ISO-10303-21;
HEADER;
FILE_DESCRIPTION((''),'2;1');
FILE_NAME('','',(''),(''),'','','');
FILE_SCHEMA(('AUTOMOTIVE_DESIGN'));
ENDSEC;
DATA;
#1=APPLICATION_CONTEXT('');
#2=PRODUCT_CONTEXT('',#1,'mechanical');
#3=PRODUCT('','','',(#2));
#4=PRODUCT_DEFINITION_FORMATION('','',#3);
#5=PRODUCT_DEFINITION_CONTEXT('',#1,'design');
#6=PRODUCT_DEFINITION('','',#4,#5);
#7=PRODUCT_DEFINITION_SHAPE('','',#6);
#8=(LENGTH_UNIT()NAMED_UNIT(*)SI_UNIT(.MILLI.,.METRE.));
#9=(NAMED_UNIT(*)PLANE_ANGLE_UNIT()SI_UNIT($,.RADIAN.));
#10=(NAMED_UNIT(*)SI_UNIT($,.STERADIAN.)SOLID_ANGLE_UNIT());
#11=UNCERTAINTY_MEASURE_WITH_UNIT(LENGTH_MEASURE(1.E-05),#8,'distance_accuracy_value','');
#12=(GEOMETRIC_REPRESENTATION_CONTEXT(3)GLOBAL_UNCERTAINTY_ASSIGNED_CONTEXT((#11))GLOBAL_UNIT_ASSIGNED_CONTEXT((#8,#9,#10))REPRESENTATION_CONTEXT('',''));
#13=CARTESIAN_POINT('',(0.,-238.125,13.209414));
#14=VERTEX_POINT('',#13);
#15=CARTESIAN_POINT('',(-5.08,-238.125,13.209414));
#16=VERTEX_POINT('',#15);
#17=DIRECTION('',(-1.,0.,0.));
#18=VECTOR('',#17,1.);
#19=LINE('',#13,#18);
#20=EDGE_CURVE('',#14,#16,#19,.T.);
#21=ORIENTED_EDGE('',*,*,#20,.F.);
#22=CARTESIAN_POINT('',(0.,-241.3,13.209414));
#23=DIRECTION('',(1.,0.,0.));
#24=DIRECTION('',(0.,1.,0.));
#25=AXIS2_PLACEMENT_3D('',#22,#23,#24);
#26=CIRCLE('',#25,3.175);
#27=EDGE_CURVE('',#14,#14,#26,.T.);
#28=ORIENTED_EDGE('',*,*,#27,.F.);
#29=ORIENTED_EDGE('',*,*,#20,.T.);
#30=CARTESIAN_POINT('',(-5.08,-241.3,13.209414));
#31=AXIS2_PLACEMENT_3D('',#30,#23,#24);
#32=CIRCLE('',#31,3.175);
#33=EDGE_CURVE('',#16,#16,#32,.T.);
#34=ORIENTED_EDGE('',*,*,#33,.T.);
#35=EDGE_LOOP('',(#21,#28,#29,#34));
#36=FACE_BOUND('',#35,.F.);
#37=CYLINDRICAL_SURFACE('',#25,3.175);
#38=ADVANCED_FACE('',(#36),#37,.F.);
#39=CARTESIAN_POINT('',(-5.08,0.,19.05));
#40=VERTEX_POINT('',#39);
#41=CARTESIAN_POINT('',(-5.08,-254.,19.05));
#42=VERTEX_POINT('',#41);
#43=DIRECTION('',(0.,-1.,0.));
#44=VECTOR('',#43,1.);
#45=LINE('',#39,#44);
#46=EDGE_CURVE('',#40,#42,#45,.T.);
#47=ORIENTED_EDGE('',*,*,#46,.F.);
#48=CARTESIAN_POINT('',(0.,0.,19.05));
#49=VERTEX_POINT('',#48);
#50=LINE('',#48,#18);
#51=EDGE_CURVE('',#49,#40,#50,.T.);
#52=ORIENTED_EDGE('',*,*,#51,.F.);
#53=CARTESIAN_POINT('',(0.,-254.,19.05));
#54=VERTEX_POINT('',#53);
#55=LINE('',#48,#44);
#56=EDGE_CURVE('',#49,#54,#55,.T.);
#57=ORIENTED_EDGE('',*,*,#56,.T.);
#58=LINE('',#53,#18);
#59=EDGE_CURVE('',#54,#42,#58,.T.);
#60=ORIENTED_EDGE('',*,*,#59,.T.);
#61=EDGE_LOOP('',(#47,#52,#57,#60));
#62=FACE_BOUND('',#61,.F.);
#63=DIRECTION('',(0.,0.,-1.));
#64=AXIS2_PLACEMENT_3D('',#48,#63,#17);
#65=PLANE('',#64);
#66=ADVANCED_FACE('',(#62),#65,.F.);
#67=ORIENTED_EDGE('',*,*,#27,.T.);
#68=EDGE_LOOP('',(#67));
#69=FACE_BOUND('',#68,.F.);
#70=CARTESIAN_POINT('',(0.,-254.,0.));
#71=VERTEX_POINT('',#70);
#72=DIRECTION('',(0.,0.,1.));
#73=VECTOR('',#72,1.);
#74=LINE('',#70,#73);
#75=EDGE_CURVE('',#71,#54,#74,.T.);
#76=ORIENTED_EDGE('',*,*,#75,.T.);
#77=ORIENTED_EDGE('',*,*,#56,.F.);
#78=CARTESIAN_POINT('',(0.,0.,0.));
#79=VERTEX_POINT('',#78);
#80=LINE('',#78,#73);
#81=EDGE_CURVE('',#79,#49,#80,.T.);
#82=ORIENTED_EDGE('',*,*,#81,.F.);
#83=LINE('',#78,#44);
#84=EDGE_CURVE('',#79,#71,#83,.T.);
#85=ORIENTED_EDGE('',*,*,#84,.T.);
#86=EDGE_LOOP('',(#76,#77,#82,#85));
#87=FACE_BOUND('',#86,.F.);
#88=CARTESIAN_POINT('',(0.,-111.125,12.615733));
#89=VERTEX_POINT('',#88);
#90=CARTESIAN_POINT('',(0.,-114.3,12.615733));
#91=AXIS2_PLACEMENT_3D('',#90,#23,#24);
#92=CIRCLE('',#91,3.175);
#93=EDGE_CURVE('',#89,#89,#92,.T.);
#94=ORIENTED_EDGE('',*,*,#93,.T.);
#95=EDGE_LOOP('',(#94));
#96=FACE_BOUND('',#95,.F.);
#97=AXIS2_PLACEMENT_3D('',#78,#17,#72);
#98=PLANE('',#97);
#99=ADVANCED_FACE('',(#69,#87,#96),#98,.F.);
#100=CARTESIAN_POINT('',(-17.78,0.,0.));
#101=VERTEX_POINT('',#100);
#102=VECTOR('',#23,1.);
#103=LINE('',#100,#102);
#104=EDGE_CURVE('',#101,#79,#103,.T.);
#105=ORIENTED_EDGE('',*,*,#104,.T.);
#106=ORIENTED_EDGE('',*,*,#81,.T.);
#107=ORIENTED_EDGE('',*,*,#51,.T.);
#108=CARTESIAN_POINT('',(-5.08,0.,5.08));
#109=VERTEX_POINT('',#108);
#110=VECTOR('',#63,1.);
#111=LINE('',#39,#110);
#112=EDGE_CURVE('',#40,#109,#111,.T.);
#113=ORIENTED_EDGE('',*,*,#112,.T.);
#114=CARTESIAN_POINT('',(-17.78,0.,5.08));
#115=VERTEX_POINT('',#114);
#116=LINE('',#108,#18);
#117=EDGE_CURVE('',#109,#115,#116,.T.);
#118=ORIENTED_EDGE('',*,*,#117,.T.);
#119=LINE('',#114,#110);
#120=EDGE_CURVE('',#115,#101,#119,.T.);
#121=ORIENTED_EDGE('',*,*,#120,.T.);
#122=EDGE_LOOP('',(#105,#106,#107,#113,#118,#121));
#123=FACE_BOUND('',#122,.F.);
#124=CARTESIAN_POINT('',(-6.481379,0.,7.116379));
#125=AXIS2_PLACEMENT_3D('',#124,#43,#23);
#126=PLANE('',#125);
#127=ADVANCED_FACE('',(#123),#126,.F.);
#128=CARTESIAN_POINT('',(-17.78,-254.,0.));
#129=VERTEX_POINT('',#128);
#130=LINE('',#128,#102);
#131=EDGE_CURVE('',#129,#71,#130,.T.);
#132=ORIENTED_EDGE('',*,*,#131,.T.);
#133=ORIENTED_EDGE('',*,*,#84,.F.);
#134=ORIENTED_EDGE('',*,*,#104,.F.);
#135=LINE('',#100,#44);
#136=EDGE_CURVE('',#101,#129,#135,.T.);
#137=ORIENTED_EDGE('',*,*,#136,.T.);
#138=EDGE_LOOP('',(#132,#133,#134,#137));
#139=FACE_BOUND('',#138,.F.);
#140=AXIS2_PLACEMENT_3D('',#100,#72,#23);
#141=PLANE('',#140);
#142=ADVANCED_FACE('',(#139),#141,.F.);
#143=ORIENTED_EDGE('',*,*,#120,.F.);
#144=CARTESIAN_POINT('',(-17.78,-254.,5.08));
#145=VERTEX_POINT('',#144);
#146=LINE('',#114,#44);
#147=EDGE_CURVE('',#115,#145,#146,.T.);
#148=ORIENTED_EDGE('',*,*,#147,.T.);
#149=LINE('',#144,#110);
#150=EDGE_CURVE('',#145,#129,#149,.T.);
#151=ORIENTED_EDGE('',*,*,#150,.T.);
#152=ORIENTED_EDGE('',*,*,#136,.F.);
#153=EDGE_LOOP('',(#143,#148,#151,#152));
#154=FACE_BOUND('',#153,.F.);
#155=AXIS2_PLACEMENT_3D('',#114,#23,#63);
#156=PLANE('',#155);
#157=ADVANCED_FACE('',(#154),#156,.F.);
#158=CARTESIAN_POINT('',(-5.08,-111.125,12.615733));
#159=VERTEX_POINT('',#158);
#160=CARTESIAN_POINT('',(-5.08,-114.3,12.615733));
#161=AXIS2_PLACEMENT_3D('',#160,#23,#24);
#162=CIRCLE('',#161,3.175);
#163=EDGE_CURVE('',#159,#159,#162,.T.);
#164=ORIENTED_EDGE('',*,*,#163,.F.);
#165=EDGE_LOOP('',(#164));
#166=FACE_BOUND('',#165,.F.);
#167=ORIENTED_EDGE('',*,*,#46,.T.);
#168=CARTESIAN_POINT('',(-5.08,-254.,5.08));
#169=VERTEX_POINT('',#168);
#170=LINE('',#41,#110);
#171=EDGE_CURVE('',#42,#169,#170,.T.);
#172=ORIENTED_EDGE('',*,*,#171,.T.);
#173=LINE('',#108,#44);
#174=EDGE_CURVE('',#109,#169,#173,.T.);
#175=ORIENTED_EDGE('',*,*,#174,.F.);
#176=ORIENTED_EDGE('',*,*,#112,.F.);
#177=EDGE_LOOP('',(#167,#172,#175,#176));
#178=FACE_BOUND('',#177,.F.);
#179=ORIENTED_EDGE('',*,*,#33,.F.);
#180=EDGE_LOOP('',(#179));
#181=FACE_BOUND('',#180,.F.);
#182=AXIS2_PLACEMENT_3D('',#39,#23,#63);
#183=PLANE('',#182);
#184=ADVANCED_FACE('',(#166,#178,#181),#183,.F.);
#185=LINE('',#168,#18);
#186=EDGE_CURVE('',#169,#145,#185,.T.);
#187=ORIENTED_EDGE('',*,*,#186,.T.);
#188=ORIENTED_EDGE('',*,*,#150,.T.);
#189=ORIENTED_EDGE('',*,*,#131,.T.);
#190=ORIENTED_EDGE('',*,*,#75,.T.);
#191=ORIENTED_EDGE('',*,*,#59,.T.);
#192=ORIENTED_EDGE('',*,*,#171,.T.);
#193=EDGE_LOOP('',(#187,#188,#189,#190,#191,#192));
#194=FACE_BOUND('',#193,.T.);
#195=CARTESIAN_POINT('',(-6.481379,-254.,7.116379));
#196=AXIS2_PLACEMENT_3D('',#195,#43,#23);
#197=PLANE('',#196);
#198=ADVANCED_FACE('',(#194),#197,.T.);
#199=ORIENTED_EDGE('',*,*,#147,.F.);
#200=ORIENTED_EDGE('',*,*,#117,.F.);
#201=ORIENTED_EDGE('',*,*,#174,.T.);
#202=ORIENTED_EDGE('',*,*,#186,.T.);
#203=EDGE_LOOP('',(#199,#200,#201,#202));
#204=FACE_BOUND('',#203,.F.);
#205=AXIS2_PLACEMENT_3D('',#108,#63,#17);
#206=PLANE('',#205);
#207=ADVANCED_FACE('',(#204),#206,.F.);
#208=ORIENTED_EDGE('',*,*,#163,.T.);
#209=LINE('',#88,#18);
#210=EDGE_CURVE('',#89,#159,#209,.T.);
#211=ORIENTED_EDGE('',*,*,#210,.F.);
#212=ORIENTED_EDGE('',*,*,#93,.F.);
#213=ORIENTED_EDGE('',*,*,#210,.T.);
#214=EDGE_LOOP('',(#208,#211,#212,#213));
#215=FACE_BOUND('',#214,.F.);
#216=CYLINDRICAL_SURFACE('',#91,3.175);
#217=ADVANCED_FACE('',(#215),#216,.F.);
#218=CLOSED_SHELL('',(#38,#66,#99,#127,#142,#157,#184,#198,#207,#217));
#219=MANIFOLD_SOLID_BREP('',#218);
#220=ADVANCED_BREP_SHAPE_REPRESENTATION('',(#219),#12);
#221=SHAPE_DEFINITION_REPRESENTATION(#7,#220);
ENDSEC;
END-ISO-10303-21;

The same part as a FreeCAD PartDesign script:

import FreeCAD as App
import Part
import Sketcher
Q = App.Units.Quantity

doc = App.newDocument("Part")
body = doc.addObject("PartDesign::Body", "Body")

sketch1 = doc.addObject("Sketcher::SketchObject", "Sketch")
body.addObject(sketch1)
sketch1.AttachmentSupport = (doc.XZ_Plane, [""])
sketch1.MapMode = "FlatFace"
sketch1.addGeometry([
    Part.LineSegment(App.Vector(-17.78, 0, 0), App.Vector(0, 0, 0)),
    Part.LineSegment(App.Vector(0, 0, 0), App.Vector(0, 19.05, 0)),
    Part.LineSegment(App.Vector(0, 19.05, 0), App.Vector(-5.08, 19.05, 0)),
    Part.LineSegment(App.Vector(-5.08, 19.05, 0), App.Vector(-5.08, 5.08, 0)),
    Part.LineSegment(App.Vector(-5.08, 5.08, 0), App.Vector(-17.78, 5.08, 0)),
    Part.LineSegment(App.Vector(-17.78, 5.08, 0), App.Vector(-17.78, 0, 0)),
], False)
sketch1.addConstraint([
    Sketcher.Constraint("Coincident", 0, 2, 1, 1),
    Sketcher.Constraint("Coincident", 1, 2, 2, 1),
    Sketcher.Constraint("Coincident", 2, 2, 3, 1),
    Sketcher.Constraint("Coincident", 3, 2, 4, 1),
    Sketcher.Constraint("Coincident", 4, 2, 5, 1),
    Sketcher.Constraint("Coincident", 5, 2, 0, 1),
    Sketcher.Constraint("Horizontal", 0),
    Sketcher.Constraint("Vertical", 1),
    Sketcher.Constraint("Horizontal", 2),
    Sketcher.Constraint("Vertical", 3),
    Sketcher.Constraint("Horizontal", 4),
    Sketcher.Constraint("Vertical", 5),
    Sketcher.Constraint("Coincident", 0, 2, -1, 1),
    Sketcher.Constraint("Equal", 2, 5),
    Sketcher.Constraint("DistanceX", 0, 1, 0, 2, Q("0.7 in")),
    Sketcher.Constraint("DistanceX", 2, 2, 2, 1, Q("0.2 in")),
    Sketcher.Constraint("DistanceY", 1, 1, 1, 2, Q("0.75 in")),
])
pad1 = doc.addObject("PartDesign::Pad", "Pad")
body.addObject(pad1)
pad1.Profile = sketch1
pad1.Length = Q("10 in")

sketch2 = doc.addObject("Sketcher::SketchObject", "Sketch001")
body.addObject(sketch2)
sketch2.AttachmentSupport = (doc.YZ_Plane, [""])
sketch2.MapMode = "FlatFace"
sketch2.addGeometry([
    Part.Circle(App.Vector(-241.3, 13.209414, 0), App.Vector(0, 0, 1), 3.175),
    Part.Circle(App.Vector(-114.3, 12.615733, 0), App.Vector(0, 0, 1), 3.175),
], False)
sketch2.addConstraint([
    Sketcher.Constraint("Equal", 0, 1),
    Sketcher.Constraint("Diameter", 0, Q("0.25 in")),
    Sketcher.Constraint("DistanceX", 0, 3, 1, 3, Q("5 in")),
    Sketcher.Constraint("DistanceX", 0, 3, -1, 1, Q("9.5 in")),
    Sketcher.Constraint("DistanceY", 1, 3, 0, 3, Q("0.593681 mm")),
    Sketcher.Constraint("DistanceY", -1, 1, 0, 3, Q("13.209414 mm")),
])
pocket1 = doc.addObject("PartDesign::Pocket", "Pocket")
body.addObject(pocket1)
pocket1.Profile = sketch2
pocket1.Length = Q("1 in")

doc.recompute()
